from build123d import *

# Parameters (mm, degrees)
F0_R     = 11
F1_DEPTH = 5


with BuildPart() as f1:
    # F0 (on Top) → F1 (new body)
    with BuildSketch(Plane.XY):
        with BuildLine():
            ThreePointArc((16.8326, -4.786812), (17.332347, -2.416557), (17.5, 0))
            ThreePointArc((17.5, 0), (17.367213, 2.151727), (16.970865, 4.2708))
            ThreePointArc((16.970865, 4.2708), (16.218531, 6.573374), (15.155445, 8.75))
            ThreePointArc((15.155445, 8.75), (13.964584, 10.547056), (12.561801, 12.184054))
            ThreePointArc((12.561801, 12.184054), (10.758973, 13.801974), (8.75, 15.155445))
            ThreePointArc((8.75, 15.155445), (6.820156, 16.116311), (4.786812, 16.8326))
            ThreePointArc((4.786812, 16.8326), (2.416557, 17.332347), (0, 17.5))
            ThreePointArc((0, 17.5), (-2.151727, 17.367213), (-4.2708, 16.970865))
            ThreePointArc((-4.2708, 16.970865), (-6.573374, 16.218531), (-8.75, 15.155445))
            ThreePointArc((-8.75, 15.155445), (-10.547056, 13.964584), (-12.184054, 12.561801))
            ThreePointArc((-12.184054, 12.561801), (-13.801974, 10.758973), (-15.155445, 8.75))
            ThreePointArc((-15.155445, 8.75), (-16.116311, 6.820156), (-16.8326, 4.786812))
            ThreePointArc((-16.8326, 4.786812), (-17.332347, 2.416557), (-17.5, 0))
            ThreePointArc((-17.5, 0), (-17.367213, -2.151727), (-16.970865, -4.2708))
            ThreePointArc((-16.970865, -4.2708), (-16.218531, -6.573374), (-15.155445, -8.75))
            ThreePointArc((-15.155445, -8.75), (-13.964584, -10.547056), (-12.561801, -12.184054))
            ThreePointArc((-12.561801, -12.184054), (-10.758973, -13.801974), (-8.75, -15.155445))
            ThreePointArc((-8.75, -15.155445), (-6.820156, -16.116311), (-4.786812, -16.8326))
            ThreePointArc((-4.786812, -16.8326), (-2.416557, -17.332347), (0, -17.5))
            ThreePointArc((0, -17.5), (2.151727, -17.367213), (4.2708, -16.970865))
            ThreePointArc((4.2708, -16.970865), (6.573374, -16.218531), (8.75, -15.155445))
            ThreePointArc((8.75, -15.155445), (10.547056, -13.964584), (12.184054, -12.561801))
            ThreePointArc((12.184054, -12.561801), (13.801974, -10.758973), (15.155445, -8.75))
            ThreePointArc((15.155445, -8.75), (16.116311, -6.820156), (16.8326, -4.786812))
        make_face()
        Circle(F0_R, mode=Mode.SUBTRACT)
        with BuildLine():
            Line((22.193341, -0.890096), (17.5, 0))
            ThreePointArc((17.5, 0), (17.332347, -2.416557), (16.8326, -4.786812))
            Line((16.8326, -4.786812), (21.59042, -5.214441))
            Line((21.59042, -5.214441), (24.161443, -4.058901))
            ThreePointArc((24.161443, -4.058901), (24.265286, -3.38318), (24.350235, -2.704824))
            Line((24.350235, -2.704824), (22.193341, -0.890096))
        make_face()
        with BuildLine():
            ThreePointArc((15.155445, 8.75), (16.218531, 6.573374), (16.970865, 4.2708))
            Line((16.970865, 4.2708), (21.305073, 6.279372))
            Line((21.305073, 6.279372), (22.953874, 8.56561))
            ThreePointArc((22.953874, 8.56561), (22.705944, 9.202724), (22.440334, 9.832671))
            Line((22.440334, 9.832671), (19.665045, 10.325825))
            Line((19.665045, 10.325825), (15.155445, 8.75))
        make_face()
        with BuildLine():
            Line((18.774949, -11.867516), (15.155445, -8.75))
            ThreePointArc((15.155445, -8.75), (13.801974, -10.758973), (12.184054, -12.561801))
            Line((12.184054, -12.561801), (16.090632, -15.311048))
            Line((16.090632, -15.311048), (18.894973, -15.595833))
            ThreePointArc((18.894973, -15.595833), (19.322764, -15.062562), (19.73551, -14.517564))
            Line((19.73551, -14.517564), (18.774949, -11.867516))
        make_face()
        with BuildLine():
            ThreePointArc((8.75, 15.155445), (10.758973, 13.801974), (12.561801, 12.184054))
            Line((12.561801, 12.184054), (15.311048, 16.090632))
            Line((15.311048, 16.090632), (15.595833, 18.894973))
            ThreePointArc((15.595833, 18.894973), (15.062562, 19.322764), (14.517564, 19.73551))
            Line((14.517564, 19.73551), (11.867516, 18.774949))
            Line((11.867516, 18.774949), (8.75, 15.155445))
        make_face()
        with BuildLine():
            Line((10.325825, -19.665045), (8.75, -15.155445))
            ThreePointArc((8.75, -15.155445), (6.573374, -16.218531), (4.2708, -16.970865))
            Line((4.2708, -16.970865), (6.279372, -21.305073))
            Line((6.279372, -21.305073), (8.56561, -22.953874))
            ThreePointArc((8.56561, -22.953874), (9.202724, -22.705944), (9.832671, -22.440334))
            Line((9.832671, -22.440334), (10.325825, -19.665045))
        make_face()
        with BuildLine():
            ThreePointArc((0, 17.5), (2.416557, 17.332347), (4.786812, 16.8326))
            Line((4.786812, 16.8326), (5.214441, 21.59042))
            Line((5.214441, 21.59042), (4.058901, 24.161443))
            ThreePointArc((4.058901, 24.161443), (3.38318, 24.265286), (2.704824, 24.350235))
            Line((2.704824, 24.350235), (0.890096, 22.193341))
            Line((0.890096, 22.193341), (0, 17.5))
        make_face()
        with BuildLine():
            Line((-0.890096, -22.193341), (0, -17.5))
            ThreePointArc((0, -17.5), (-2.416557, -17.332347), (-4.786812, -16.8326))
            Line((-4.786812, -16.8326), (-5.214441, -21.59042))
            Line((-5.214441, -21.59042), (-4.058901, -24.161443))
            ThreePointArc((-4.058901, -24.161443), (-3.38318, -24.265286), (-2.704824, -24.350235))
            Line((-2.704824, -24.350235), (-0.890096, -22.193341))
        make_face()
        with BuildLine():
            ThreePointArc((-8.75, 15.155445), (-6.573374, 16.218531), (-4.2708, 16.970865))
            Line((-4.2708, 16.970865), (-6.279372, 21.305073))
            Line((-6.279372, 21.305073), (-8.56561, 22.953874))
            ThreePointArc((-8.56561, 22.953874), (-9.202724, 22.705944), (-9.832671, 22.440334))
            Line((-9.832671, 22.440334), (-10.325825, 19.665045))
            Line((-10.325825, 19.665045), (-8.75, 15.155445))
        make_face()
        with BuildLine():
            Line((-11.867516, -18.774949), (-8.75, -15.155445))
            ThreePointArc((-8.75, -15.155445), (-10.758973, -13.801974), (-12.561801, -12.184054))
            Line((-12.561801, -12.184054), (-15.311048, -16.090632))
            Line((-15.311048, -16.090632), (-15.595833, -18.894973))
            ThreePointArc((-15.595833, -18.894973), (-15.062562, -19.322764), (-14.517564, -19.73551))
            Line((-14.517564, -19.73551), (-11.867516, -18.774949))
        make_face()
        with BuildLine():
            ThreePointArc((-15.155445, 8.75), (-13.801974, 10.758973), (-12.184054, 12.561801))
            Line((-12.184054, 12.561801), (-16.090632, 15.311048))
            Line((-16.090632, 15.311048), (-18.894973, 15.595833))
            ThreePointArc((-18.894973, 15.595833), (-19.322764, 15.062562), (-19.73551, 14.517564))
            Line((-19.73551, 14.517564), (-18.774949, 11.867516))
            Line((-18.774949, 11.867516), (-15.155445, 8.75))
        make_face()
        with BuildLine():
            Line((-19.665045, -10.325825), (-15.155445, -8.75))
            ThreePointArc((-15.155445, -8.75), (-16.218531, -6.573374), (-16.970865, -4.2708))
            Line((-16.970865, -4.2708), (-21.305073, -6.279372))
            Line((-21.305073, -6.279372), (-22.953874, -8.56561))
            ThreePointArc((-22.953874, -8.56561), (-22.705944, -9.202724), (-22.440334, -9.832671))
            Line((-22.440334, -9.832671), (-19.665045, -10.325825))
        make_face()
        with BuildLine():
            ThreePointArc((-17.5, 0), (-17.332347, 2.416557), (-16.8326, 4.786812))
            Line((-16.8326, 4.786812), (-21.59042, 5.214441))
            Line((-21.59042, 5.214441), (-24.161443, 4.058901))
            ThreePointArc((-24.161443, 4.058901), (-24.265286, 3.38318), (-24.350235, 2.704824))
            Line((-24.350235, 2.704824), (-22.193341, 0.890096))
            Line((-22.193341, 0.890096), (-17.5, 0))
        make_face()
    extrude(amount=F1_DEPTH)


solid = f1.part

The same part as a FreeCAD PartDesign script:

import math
import FreeCAD as App
import Part
import Sketcher

V = App.Vector
Q = App.Units.Quantity

doc = App.newDocument("Part")
params = doc.addObject("Spreadsheet::Sheet", "Params")
for row, (alias, value) in enumerate([
    ("sketch1_diameter", "22 mm"),
    ("pad1_length", "5 mm"),
], start=1):
    params.set(f"A{row}", alias)
    params.set(f"B{row}", "=" + value)
    params.setAlias(f"B{row}", alias)

body = doc.addObject("PartDesign::Body", "Body")

# Sketch on XY plane
sketch1 = doc.addObject("Sketcher::SketchObject", "Sketch")
body.addObject(sketch1)
sketch1.AttachmentSupport = (doc.XY_Plane, [""])
sketch1.MapMode = "FlatFace"
sketch1.addGeometry([
    Part.ArcOfCircle(Part.Circle(V(0.000018, -0.00001, 0), V(0, 0, 1), 17.499979), math.radians(-30), math.radians(-15.874541)),  # 0
    Part.LineSegment(V(16.8326, -4.786812, 0), V(21.59042, -5.214441, 0)),  # 1
    Part.LineSegment(V(21.59042, -5.214441, 0), V(24.161443, -4.058901, 0)),  # 2
    Part.ArcOfCircle(Part.Circle(V(0.000015, 0.000002, 0), V(0, 0, 1), 24.499986), math.radians(-9.536137), math.radians(-6.33844)),  # 3
    Part.LineSegment(V(24.350235, -2.704824, 0), V(22.193341, -0.890096, 0)),  # 4
    Part.LineSegment(V(22.193341, -0.890096, 0), V(17.5, 0, 0)),  # 5
    Part.ArcOfCircle(Part.Circle(V(0.000078, 0.000009, 0), V(0, 0, 1), 17.499922), math.radians(-0.000028), math.radians(14.12548)),  # 6
    Part.LineSegment(V(16.970865, 4.2708, 0), V(21.305073, 6.279372, 0)),  # 7
    Part.LineSegment(V(21.305073, 6.279372, 0), V(22.953874, 8.56561, 0)),  # 8
    Part.ArcOfCircle(Part.Circle(V(0.000694, 0.000282, 0), V(0, 0, 1), 24.499251), math.radians(20.463823), math.radians(23.661616)),  # 9
    Part.LineSegment(V(22.440334, 9.832671, 0), V(19.665045, 10.325825, 0)),  # 10
    Part.LineSegment(V(19.665045, 10.325825, 0), V(15.155445, 8.75, 0)),  # 11
    Part.ArcOfCircle(Part.Circle(V(-0.000055, -0.000041, 0), V(0, 0, 1), 17.500068), math.radians(30.000026), math.radians(44.125416)),  # 12
    Part.LineSegment(V(12.561801, 12.184054, 0), V(15.311048, 16.090632, 0)),  # 13
    Part.LineSegment(V(15.311048, 16.090632, 0), V(15.595833, 18.894973, 0)),  # 14
    Part.ArcOfCircle(Part.Circle(V(-0.001064, -0.00136, 0), V(0, 0, 1), 24.501727), math.radians(50.463981), math.radians(53.661449)),  # 15
    Part.LineSegment(V(14.517564, 19.73551, 0), V(11.867516, 18.774949, 0)),  # 16
    Part.LineSegment(V(11.867516, 18.774949, 0), V(8.75, 15.155445, 0)),  # 17
    Part.ArcOfCircle(Part.Circle(V(0.00001, 0.000018, 0), V(0, 0, 1), 17.499979), math.radians(60), math.radians(74.125459)),  # 18
    Part.LineSegment(V(4.786812, 16.8326, 0), V(5.214441, 21.59042, 0)),  # 19
    Part.LineSegment(V(5.214441, 21.59042, 0), V(4.058901, 24.161443, 0)),  # 20
    Part.ArcOfCircle(Part.Circle(V(-0.000002, 0.000015, 0), V(0, 0, 1), 24.499986), math.radians(80.463863), math.radians(83.66156)),  # 21
    Part.LineSegment(V(2.704824, 24.350235, 0), V(0.890096, 22.193341, 0)),  # 22
    Part.LineSegment(V(0.890096, 22.193341, 0), V(0, 17.5, 0)),  # 23
    Part.ArcOfCircle(Part.Circle(V(-0.000009, 0.000078, 0), V(0, 0, 1), 17.499922), math.radians(89.999972), math.radians(104.12548)),  # 24
    Part.LineSegment(V(-4.2708, 16.970865, 0), V(-6.279372, 21.305073, 0)),  # 25
    Part.LineSegment(V(-6.279372, 21.305073, 0), V(-8.56561, 22.953874, 0)),  # 26
    Part.ArcOfCircle(Part.Circle(V(-0.000282, 0.000694, 0), V(0, 0, 1), 24.499251), math.radians(110.463823), math.radians(113.661616)),  # 27
    Part.LineSegment(V(-9.832671, 22.440334, 0), V(-10.325825, 19.665045, 0)),  # 28
    Part.LineSegment(V(-10.325825, 19.665045, 0), V(-8.75, 15.155445, 0)),  # 29
    Part.ArcOfCircle(Part.Circle(V(0.000041, -0.000055, 0), V(0, 0, 1), 17.500068), math.radians(120.000026), math.radians(134.125416)),  # 30
    Part.LineSegment(V(-12.184054, 12.561801, 0), V(-16.090632, 15.311048, 0)),  # 31
    Part.LineSegment(V(-16.090632, 15.311048, 0), V(-18.894973, 15.595833, 0)),  # 32
    Part.ArcOfCircle(Part.Circle(V(0.00136, -0.001064, 0), V(0, 0, 1), 24.501727), math.radians(140.463981), math.radians(143.661449)),  # 33
    Part.LineSegment(V(-19.73551, 14.517564, 0), V(-18.774949, 11.867516, 0)),  # 34
    Part.LineSegment(V(-18.774949, 11.867516, 0), V(-15.155445, 8.75, 0)),  # 35
    Part.ArcOfCircle(Part.Circle(V(-0.000018, 0.00001, 0), V(0, 0, 1), 17.499979), math.radians(150), math.radians(164.125459)),  # 36
    Part.LineSegment(V(-16.8326, 4.786812, 0), V(-21.59042, 5.214441, 0)),  # 37
    Part.LineSegment(V(-21.59042, 5.214441, 0), V(-24.161443, 4.058901, 0)),  # 38
    Part.ArcOfCircle(Part.Circle(V(-0.000015, -0.000002, 0), V(0, 0, 1), 24.499986), math.radians(170.463863), math.radians(173.66156)),  # 39
    Part.LineSegment(V(-24.350235, 2.704824, 0), V(-22.193341, 0.890096, 0)),  # 40
    Part.LineSegment(V(-22.193341, 0.890096, 0), V(-17.5, 0, 0)),  # 41
    Part.ArcOfCircle(Part.Circle(V(-0.000078, -0.000009, 0), V(0, 0, 1), 17.499922), math.radians(179.999972), math.radians(194.12548)),  # 42
    Part.LineSegment(V(-16.970865, -4.2708, 0), V(-21.305073, -6.279372, 0)),  # 43
    Part.LineSegment(V(-21.305073, -6.279372, 0), V(-22.953874, -8.56561, 0)),  # 44
    Part.ArcOfCircle(Part.Circle(V(-0.000694, -0.000282, 0), V(0, 0, 1), 24.499251), math.radians(-159.536177), math.radians(-156.338384)),  # 45
    Part.LineSegment(V(-22.440334, -9.832671, 0), V(-19.665045, -10.325825, 0)),  # 46
    Part.LineSegment(V(-19.665045, -10.325825, 0), V(-15.155445, -8.75, 0)),  # 47
    Part.ArcOfCircle(Part.Circle(V(0.000055, 0.000041, 0), V(0, 0, 1), 17.500068), math.radians(-149.999974), math.radians(-135.874584)),  # 48
    Part.LineSegment(V(-12.561801, -12.184054, 0), V(-15.311048, -16.090632, 0)),  # 49
    Part.LineSegment(V(-15.311048, -16.090632, 0), V(-15.595833, -18.894973, 0)),  # 50
    Part.ArcOfCircle(Part.Circle(V(0.001064, 0.00136, 0), V(0, 0, 1), 24.501727), math.radians(-129.536019), math.radians(-126.338551)),  # 51
    Part.LineSegment(V(-14.517564, -19.73551, 0), V(-11.867516, -18.774949, 0)),  # 52
    Part.LineSegment(V(-11.867516, -18.774949, 0), V(-8.75, -15.155445, 0)),  # 53
    Part.ArcOfCircle(Part.Circle(V(-0.00001, -0.000018, 0), V(0, 0, 1), 17.499979), math.radians(-120), math.radians(-105.874541)),  # 54
    Part.LineSegment(V(-4.786812, -16.8326, 0), V(-5.214441, -21.59042, 0)),  # 55
    Part.LineSegment(V(-5.214441, -21.59042, 0), V(-4.058901, -24.161443, 0)),  # 56
    Part.ArcOfCircle(Part.Circle(V(0.000002, -0.000015, 0), V(0, 0, 1), 24.499986), math.radians(-99.536137), math.radians(-96.33844)),  # 57
    Part.LineSegment(V(-2.704824, -24.350235, 0), V(-0.890096, -22.193341, 0)),  # 58
    Part.LineSegment(V(-0.890096, -22.193341, 0), V(0, -17.5, 0)),  # 59
    Part.ArcOfCircle(Part.Circle(V(0.000009, -0.000078, 0), V(0, 0, 1), 17.499922), math.radians(-90.000028), math.radians(-75.87452)),  # 60
    Part.LineSegment(V(4.2708, -16.970865, 0), V(6.279372, -21.305073, 0)),  # 61
    Part.LineSegment(V(6.279372, -21.305073, 0), V(8.56561, -22.953874, 0)),  # 62
    Part.ArcOfCircle(Part.Circle(V(0.000282, -0.000694, 0), V(0, 0, 1), 24.499251), math.radians(-69.536177), math.radians(-66.338384)),  # 63
    Part.LineSegment(V(9.832671, -22.440334, 0), V(10.325825, -19.665045, 0)),  # 64
    Part.LineSegment(V(10.325825, -19.665045, 0), V(8.75, -15.155445, 0)),  # 65
    Part.ArcOfCircle(Part.Circle(V(-0.000041, 0.000055, 0), V(0, 0, 1), 17.500068), math.radians(-59.999974), math.radians(-45.874584)),  # 66
    Part.LineSegment(V(12.184054, -12.561801, 0), V(16.090632, -15.311048, 0)),  # 67
    Part.LineSegment(V(16.090632, -15.311048, 0), V(18.894973, -15.595833, 0)),  # 68
    Part.ArcOfCircle(Part.Circle(V(-0.00136, 0.001064, 0), V(0, 0, 1), 24.501727), math.radians(-39.536019), math.radians(-36.338551)),  # 69
    Part.LineSegment(V(19.73551, -14.517564, 0), V(18.774949, -11.867516, 0)),  # 70
    Part.LineSegment(V(18.774949, -11.867516, 0), V(15.155445, -8.75, 0)),  # 71
    Part.Circle(V(0, 0, 0), V(0, 0, 1), 11),  # 72
], False)
sketch1.addConstraint([
    Sketcher.Constraint("Coincident", 0, 2, 1, 1),
    Sketcher.Constraint("Coincident", 1, 2, 2, 1),
    Sketcher.Constraint("Coincident", 2, 2, 3, 1),
    Sketcher.Constraint("Coincident", 3, 2, 4, 1),
    Sketcher.Constraint("Coincident", 4, 2, 5, 1),
    Sketcher.Constraint("Coincident", 5, 2, 6, 1),
    Sketcher.Constraint("Coincident", 6, 2, 7, 1),
    Sketcher.Constraint("Coincident", 7, 2, 8, 1),
    Sketcher.Constraint("Coincident", 8, 2, 9, 1),
    Sketcher.Constraint("Coincident", 9, 2, 10, 1),
    Sketcher.Constraint("Coincident", 10, 2, 11, 1),
    Sketcher.Constraint("Coincident", 11, 2, 12, 1),
    Sketcher.Constraint("Coincident", 12, 2, 13, 1),
    Sketcher.Constraint("Coincident", 13, 2, 14, 1),
    Sketcher.Constraint("Coincident", 14, 2, 15, 1),
    Sketcher.Constraint("Coincident", 15, 2, 16, 1),
    Sketcher.Constraint("Coincident", 16, 2, 17, 1),
    Sketcher.Constraint("Coincident", 17, 2, 18, 1),
    Sketcher.Constraint("Coincident", 18, 2, 19, 1),
    Sketcher.Constraint("Coincident", 19, 2, 20, 1),
    Sketcher.Constraint("Coincident", 20, 2, 21, 1),
    Sketcher.Constraint("Coincident", 21, 2, 22, 1),
    Sketcher.Constraint("Coincident", 22, 2, 23, 1),
    Sketcher.Constraint("Coincident", 23, 2, 24, 1),
    Sketcher.Constraint("Coincident", 24, 2, 25, 1),
    Sketcher.Constraint("Coincident", 25, 2, 26, 1),
    Sketcher.Constraint("Coincident", 26, 2, 27, 1),
    Sketcher.Constraint("Coincident", 27, 2, 28, 1),
    Sketcher.Constraint("Coincident", 28, 2, 29, 1),
    Sketcher.Constraint("Coincident", 29, 2, 30, 1),
    Sketcher.Constraint("Coincident", 30, 2, 31, 1),
    Sketcher.Constraint("Coincident", 31, 2, 32, 1),
    Sketcher.Constraint("Coincident", 32, 2, 33, 1),
    Sketcher.Constraint("Coincident", 33, 2, 34, 1),
    Sketcher.Constraint("Coincident", 34, 2, 35, 1),
    Sketcher.Constraint("Coincident", 35, 2, 36, 1),
    Sketcher.Constraint("Coincident", 36, 2, 37, 1),
    Sketcher.Constraint("Coincident", 37, 2, 38, 1),
    Sketcher.Constraint("Coincident", 38, 2, 39, 1),
    Sketcher.Constraint("Coincident", 39, 2, 40, 1),
    Sketcher.Constraint("Coincident", 40, 2, 41, 1),
    Sketcher.Constraint("Coincident", 41, 2, 42, 1),
    Sketcher.Constraint("Coincident", 42, 2, 43, 1),
    Sketcher.Constraint("Coincident", 43, 2, 44, 1),
    Sketcher.Constraint("Coincident", 44, 2, 45, 1),
    Sketcher.Constraint("Coincident", 45, 2, 46, 1),
    Sketcher.Constraint("Coincident", 46, 2, 47, 1),
    Sketcher.Constraint("Coincident", 47, 2, 48, 1),
    Sketcher.Constraint("Coincident", 48, 2, 49, 1),
    Sketcher.Constraint("Coincident", 49, 2, 50, 1),
    Sketcher.Constraint("Coincident", 50, 2, 51, 1),
    Sketcher.Constraint("Coincident", 51, 2, 52, 1),
    Sketcher.Constraint("Coincident", 52, 2, 53, 1),
    Sketcher.Constraint("Coincident", 53, 2, 54, 1),
    Sketcher.Constraint("Coincident", 54, 2, 55, 1),
    Sketcher.Constraint("Coincident", 55, 2, 56, 1),
    Sketcher.Constraint("Coincident", 56, 2, 57, 1),
    Sketcher.Constraint("Coincident", 57, 2, 58, 1),
    Sketcher.Constraint("Coincident", 58, 2, 59, 1),
    Sketcher.Constraint("Coincident", 59, 2, 60, 1),
    Sketcher.Constraint("Coincident", 60, 2, 61, 1),
    Sketcher.Constraint("Coincident", 61, 2, 62, 1),
    Sketcher.Constraint("Coincident", 62, 2, 63, 1),
    Sketcher.Constraint("Coincident", 63, 2, 64, 1),
    Sketcher.Constraint("Coincident", 64, 2, 65, 1),
    Sketcher.Constraint("Coincident", 65, 2, 66, 1),
    Sketcher.Constraint("Coincident", 66, 2, 67, 1),
    Sketcher.Constraint("Coincident", 67, 2, 68, 1),
    Sketcher.Constraint("Coincident", 68, 2, 69, 1),
    Sketcher.Constraint("Coincident", 69, 2, 70, 1),
    Sketcher.Constraint("Coincident", 70, 2, 71, 1),
    Sketcher.Constraint("Coincident", 71, 2, 0, 1),
    Sketcher.Constraint("Coincident", 72, 3, -1, 1),
    Sketcher.Constraint("Equal", 0, 18),
    Sketcher.Constraint("Equal", 3, 21),
    Sketcher.Constraint("Equal", 6, 24),
    Sketcher.Constraint("Equal", 9, 27),
    Sketcher.Constraint("Equal", 12, 30),
    Sketcher.Constraint("Equal", 15, 33),
    Sketcher.Constraint("Equal", 18, 36),
    Sketcher.Constraint("Equal", 21, 39),
    Sketcher.Constraint("Equal", 24, 42),
    Sketcher.Constraint("Equal", 27, 45),
    Sketcher.Constraint("Equal", 30, 48),
    Sketcher.Constraint("Equal", 33, 51),
    Sketcher.Constraint("Equal", 36, 54),
    Sketcher.Constraint("Equal", 39, 57),
    Sketcher.Constraint("Equal", 42, 60),
    Sketcher.Constraint("Equal", 45, 63),
    Sketcher.Constraint("Equal", 48, 66),
    Sketcher.Constraint("Equal", 51, 69),
    Sketcher.Constraint("Symmetric", 0, 3, 36, 3, -1, 1),
    Sketcher.Constraint("Symmetric", 3, 3, 39, 3, -1, 1),
    Sketcher.Constraint("Symmetric", 6, 3, 42, 3, -1, 1),
    Sketcher.Constraint("Symmetric", 9, 3, 45, 3, -1, 1),
    Sketcher.Constraint("Symmetric", 12, 3, 48, 3, -1, 1),
    Sketcher.Constraint("Symmetric", 15, 3, 51, 3, -1, 1),
    Sketcher.Constraint("Symmetric", 18, 3, 54, 3, -1, 1),
    Sketcher.Constraint("Symmetric", 21, 3, 57, 3, -1, 1),
    Sketcher.Constraint("Symmetric", 24, 3, 60, 3, -1, 1),
    Sketcher.Constraint("Symmetric", 27, 3, 63, 3, -1, 1),
    Sketcher.Constraint("Symmetric", 30, 3, 66, 3, -1, 1),
    Sketcher.Constraint("Symmetric", 33, 3, 69, 3, -1, 1),
    Sketcher.Constraint("Symmetric", 1, 2, 37, 2, -1, 1),
    Sketcher.Constraint("Symmetric", 4, 2, 40, 2, -1, 1),
    Sketcher.Constraint("Symmetric", 7, 2, 43, 2, -1, 1),
    Sketcher.Constraint("Symmetric", 10, 2, 46, 2, -1, 1),
    Sketcher.Constraint("Symmetric", 13, 2, 49, 2, -1, 1),
    Sketcher.Constraint("Symmetric", 16, 2, 52, 2, -1, 1),
    Sketcher.Constraint("Symmetric", 19, 2, 55, 2, -1, 1),
    Sketcher.Constraint("Symmetric", 22, 2, 58, 2, -1, 1),
    Sketcher.Constraint("Symmetric", 25, 2, 61, 2, -1, 1),
    Sketcher.Constraint("Symmetric", 28, 2, 64, 2, -1, 1),
    Sketcher.Constraint("Symmetric", 31, 2, 67, 2, -1, 1),
    Sketcher.Constraint("Symmetric", 34, 2, 70, 2, -1, 1),
    Sketcher.Constraint("Symmetric", 3, 3, 36, 3, -2),
    Sketcher.Constraint("Symmetric", 17, 2, 29, 2, -2),
    Sketcher.Constraint("Symmetric", 11, 2, 35, 2, -2),
    Sketcher.Constraint("Symmetric", 21, 3, 54, 3, -1),
    Sketcher.Constraint("PointOnObject", 5, 2, -1),
    Sketcher.Constraint("PointOnObject", 23, 2, -2),
    Sketcher.Constraint("PointOnObject", 41, 2, -1),
    Sketcher.Constraint("PointOnObject", 59, 2, -2),
    Sketcher.Constraint("Perpendicular", 1, 19),
    Sketcher.Constraint("Perpendicular", 2, 20),
    Sketcher.Constraint("Perpendicular", 4, 22),
    Sketcher.Constraint("Perpendicular", 5, 23),
    Sketcher.Constraint("Perpendicular", 7, 25),
    Sketcher.Constraint("Perpendicular", 8, 26),
    Sketcher.Constraint("Perpendicular", 10, 28),
    Sketcher.Constraint("Perpendicular", 11, 29),
    Sketcher.Constraint("Perpendicular", 13, 31),
    Sketcher.Constraint("Perpendicular", 14, 32),
    Sketcher.Constraint("Perpendicular", 16, 34),
    Sketcher.Constraint("Perpendicular", 17, 35),
    Sketcher.Constraint("Perpendicular", 19, 37),
    Sketcher.Constraint("Perpendicular", 20, 38),
    Sketcher.Constraint("Perpendicular", 22, 40),
    Sketcher.Constraint("Perpendicular", 25, 43),
    Sketcher.Constraint("Perpendicular", 26, 44),
    Sketcher.Constraint("Perpendicular", 28, 46),
    Sketcher.Constraint("Perpendicular", 29, 47),
    Sketcher.Constraint("Perpendicular", 31, 49),
    Sketcher.Constraint("Perpendicular", 32, 50),
    Sketcher.Constraint("Perpendicular", 34, 52),
    Sketcher.Constraint("Perpendicular", 35, 53),
    Sketcher.Constraint("Perpendicular", 37, 55),
    Sketcher.Constraint("Perpendicular", 38, 56),
    Sketcher.Constraint("Perpendicular", 40, 58),
    Sketcher.Constraint("Perpendicular", 43, 61),
    Sketcher.Constraint("Perpendicular", 44, 62),
    Sketcher.Constraint("Perpendicular", 46, 64),
    Sketcher.Constraint("Perpendicular", 47, 65),
    Sketcher.Constraint("Perpendicular", 49, 67),
    Sketcher.Constraint("Perpendicular", 50, 68),
    Sketcher.Constraint("Perpendicular", 52, 70),
    Sketcher.Constraint("Perpendicular", 53, 71),
    Sketcher.Constraint("Horizontal", 6, 3, 36, 3),
    Sketcher.Constraint("Vertical", 24, 3, 54, 3),
    Sketcher.Constraint("Equal", 2, 4),
    Sketcher.Constraint("Equal", 1, 5),
    Sketcher.Constraint("Equal", 5, 7),
    Sketcher.Constraint("Equal", 4, 8),
    Sketcher.Constraint("Equal", 8, 10),
    Sketcher.Constraint("Equal", 7, 11),
    Sketcher.Constraint("Equal", 11, 13),
    Sketcher.Constraint("Equal", 10, 14),
    Sketcher.Constraint("Equal", 14, 16),
    Sketcher.Constraint("Equal", 13, 17),
    Sketcher.Constraint("Equal", 17, 19),
    Sketcher.Constraint("Equal", 16, 20),
    Sketcher.Constraint("Equal", 20, 22),
    Sketcher.Constraint("Equal", 19, 23),
    Sketcher.Constraint("Equal", 23, 25),
    Sketcher.Constraint("Equal", 22, 26),
    Sketcher.Constraint("Equal", 26, 28),
    Sketcher.Constraint("Equal", 25, 29),
    Sketcher.Constraint("Equal", 29, 31),
    Sketcher.Constraint("Equal", 28, 32),
    Sketcher.Constraint("Equal", 32, 34),
    Sketcher.Constraint("Equal", 31, 35),
    Sketcher.Constraint("Diameter", 72, Q("22 mm")),
    Sketcher.Constraint("DistanceX", -1, 1, 5, 2, Q("17.5 mm")),
    Sketcher.Constraint("DistanceY", -1, 1, 23, 2, Q("17.5 mm")),
    Sketcher.Constraint("DistanceY", -1, 1, 11, 2, Q("8.75 mm")),
    Sketcher.Constraint("DistanceX", -1, 1, 17, 2, Q("8.75 mm")),
    Sketcher.Constraint("Radius", 0, Q("17.499979 mm")),
    Sketcher.Constraint("Radius", 9, Q("24.499251 mm")),
    Sketcher.Constraint("Radius", 12, Q("17.500068 mm")),
    Sketcher.Constraint("Distance", 1, Q("4.776999 mm")),
    Sketcher.Constraint("Radius", 3, Q("24.499986 mm")),
    Sketcher.Constraint("Radius", 6, Q("17.499922 mm")),
    Sketcher.Constraint("Radius", 15, Q("24.501727 mm")),
    Sketcher.Constraint("DistanceX", -1, 1, 0, 2, Q("16.8326 mm")),
    Sketcher.Constraint("DistanceY", 2, 2, -1, 1, Q("4.058901 mm")),
    Sketcher.Constraint("DistanceY", -1, 1, 6, 2, Q("4.2708 mm")),
    Sketcher.Constraint("DistanceX", -1, 1, 12, 2, Q("12.561801 mm")),
    Sketcher.Constraint("DistanceY", -1, 1, 18, 2, Q("16.8326 mm")),
    Sketcher.Constraint("DistanceX", 24, 2, -1, 1, Q("4.2708 mm")),
    Sketcher.Constraint("DistanceY", -1, 1, 30, 2, Q("12.561801 mm")),
    Sketcher.Constraint("DistanceY", 15, 3, -1, 1, Q("0.00136 mm")),
    Sketcher.Constraint("DistanceX", -1, 1, 33, 3, Q("0.00136 mm")),
    Sketcher.Constraint("DistanceY", 0, 2, -1, 1, Q("4.786812 mm")),
    Sketcher.Constraint("DistanceX", -1, 1, 1, 2, Q("21.59042 mm")),
    Sketcher.Constraint("DistanceX", -1, 1, 4, 2, Q("22.193341 mm")),
    Sketcher.Constraint("DistanceY", -1, 1, 8, 2, Q("8.56561 mm")),
    Sketcher.Constraint("DistanceY", -1, 1, 9, 2, Q("9.832671 mm")),
    Sketcher.Constraint("DistanceY", -1, 1, 13, 2, Q("16.090632 mm")),
    Sketcher.Constraint("DistanceY", -1, 1, 15, 2, Q("19.73551 mm")),
    Sketcher.Constraint("DistanceY", -1, 1, 16, 2, Q("18.774949 mm")),
    Sketcher.Constraint("Distance", 2, Q("2.818764 mm")),
    Sketcher.Constraint("DistanceX", -1, 1, 9, 3, Q("0.000694 mm")),
    Sketcher.Constraint("DistanceY", -1, 1, 9, 3, Q("0.000282 mm")),
    Sketcher.Constraint("DistanceY", -1, 1, 12, 2, Q("12.184054 mm")),
])
sketch1.setExpression("Constraints[181]", "Params.sketch1_diameter")
pad1 = doc.addObject("PartDesign::Pad", "Pad")
body.addObject(pad1)
pad1.Profile = sketch1
pad1.setExpression("Length", "Params.pad1_length")

doc.recompute()
